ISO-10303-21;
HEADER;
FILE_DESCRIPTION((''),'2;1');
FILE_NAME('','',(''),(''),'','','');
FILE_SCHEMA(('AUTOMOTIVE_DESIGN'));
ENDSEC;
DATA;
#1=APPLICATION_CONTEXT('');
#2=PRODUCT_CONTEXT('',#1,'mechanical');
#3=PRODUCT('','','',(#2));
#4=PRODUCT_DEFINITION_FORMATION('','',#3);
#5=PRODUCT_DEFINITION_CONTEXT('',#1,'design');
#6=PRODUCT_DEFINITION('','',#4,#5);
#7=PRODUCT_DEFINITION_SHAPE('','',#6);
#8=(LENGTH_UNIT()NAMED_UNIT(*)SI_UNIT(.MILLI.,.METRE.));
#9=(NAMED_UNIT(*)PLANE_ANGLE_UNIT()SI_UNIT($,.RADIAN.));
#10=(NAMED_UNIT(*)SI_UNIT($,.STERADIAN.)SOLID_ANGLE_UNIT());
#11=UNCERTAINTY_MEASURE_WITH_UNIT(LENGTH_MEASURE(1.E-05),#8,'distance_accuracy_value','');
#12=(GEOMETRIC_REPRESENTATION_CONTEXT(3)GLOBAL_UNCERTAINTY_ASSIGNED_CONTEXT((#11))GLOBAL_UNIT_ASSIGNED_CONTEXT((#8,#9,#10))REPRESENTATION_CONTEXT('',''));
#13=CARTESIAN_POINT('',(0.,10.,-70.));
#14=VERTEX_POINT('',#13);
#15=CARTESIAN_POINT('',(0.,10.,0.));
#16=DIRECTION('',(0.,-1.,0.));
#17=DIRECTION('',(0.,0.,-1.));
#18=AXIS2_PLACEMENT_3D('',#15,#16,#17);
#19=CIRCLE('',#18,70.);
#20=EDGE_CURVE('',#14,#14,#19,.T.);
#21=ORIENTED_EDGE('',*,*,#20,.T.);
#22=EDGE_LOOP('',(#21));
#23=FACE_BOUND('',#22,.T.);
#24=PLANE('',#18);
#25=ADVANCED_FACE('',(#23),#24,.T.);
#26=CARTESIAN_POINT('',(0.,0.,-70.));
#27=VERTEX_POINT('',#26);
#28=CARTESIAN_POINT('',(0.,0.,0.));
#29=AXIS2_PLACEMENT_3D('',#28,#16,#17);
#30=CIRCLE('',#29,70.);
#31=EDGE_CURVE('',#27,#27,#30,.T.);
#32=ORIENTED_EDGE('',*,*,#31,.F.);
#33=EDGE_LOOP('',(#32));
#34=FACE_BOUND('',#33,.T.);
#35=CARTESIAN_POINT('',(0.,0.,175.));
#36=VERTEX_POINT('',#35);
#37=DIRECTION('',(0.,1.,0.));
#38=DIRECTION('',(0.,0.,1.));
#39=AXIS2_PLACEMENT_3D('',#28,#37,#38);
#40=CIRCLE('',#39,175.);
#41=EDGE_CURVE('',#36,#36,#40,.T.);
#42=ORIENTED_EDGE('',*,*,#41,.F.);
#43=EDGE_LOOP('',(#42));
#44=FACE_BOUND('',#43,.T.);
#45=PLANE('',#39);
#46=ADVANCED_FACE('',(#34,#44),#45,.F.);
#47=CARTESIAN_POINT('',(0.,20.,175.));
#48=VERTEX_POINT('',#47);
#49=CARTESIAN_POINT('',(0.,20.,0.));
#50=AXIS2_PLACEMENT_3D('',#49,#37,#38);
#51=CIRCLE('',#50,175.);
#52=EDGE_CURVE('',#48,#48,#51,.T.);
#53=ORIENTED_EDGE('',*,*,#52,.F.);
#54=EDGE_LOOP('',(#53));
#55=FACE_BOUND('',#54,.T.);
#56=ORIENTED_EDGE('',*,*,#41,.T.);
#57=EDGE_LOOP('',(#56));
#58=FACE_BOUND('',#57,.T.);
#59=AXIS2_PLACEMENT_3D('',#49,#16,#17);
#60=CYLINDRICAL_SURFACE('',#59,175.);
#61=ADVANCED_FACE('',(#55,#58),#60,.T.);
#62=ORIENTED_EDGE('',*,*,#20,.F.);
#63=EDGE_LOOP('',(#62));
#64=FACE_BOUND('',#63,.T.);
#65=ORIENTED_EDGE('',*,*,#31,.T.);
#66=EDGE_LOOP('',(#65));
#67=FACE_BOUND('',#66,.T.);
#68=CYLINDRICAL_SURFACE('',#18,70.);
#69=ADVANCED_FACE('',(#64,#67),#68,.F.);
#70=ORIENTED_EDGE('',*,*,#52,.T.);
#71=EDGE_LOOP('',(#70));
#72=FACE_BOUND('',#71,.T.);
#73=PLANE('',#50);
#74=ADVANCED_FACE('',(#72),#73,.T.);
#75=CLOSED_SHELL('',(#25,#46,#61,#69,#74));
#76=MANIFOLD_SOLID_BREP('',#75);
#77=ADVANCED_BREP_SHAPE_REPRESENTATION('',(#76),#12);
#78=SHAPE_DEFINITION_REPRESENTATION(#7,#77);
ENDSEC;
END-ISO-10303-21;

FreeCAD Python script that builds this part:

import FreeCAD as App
import Part
import Sketcher

doc = App.newDocument("Part")
body = doc.addObject("PartDesign::Body", "Body")

# Sketch on XZ plane
sketch1 = body.newObject("Sketcher::SketchObject", "Sketch")
sketch1.AttachmentSupport = (doc.getObject("XZ_Plane"), [""])
sketch1.MapMode = "FlatFace"
sketch1.addGeometry(Part.Circle(App.Vector(0, 0, 0), App.Vector(0, 0, 1), 175), False)
sketch1.addConstraint(Sketcher.Constraint("Coincident", 0, 3, -1, 1))
sketch1.addConstraint(Sketcher.Constraint("Diameter", 0, 350.0))
pad1 = body.newObject("PartDesign::Pad", "Pad")
pad1.Profile = sketch1
pad1.Length = 20
pad1.Reversed = True

# Sketch on XZ plane
sketch2 = body.newObject("Sketcher::SketchObject", "Sketch001")
sketch2.AttachmentSupport = (doc.getObject("XZ_Plane"), [""])
sketch2.MapMode = "FlatFace"
sketch2.addGeometry(Part.Circle(App.Vector(0, 0, 0), App.Vector(0, 0, 1), 70), False)
sketch2.addConstraint(Sketcher.Constraint("Coincident", 0, 3, -1, 1))
sketch2.addConstraint(Sketcher.Constraint("Diameter", 0, 140.0))
pocket1 = body.newObject("PartDesign::Pocket", "Pocket")
pocket1.Profile = sketch2
pocket1.Length = 10

doc.recompute()
